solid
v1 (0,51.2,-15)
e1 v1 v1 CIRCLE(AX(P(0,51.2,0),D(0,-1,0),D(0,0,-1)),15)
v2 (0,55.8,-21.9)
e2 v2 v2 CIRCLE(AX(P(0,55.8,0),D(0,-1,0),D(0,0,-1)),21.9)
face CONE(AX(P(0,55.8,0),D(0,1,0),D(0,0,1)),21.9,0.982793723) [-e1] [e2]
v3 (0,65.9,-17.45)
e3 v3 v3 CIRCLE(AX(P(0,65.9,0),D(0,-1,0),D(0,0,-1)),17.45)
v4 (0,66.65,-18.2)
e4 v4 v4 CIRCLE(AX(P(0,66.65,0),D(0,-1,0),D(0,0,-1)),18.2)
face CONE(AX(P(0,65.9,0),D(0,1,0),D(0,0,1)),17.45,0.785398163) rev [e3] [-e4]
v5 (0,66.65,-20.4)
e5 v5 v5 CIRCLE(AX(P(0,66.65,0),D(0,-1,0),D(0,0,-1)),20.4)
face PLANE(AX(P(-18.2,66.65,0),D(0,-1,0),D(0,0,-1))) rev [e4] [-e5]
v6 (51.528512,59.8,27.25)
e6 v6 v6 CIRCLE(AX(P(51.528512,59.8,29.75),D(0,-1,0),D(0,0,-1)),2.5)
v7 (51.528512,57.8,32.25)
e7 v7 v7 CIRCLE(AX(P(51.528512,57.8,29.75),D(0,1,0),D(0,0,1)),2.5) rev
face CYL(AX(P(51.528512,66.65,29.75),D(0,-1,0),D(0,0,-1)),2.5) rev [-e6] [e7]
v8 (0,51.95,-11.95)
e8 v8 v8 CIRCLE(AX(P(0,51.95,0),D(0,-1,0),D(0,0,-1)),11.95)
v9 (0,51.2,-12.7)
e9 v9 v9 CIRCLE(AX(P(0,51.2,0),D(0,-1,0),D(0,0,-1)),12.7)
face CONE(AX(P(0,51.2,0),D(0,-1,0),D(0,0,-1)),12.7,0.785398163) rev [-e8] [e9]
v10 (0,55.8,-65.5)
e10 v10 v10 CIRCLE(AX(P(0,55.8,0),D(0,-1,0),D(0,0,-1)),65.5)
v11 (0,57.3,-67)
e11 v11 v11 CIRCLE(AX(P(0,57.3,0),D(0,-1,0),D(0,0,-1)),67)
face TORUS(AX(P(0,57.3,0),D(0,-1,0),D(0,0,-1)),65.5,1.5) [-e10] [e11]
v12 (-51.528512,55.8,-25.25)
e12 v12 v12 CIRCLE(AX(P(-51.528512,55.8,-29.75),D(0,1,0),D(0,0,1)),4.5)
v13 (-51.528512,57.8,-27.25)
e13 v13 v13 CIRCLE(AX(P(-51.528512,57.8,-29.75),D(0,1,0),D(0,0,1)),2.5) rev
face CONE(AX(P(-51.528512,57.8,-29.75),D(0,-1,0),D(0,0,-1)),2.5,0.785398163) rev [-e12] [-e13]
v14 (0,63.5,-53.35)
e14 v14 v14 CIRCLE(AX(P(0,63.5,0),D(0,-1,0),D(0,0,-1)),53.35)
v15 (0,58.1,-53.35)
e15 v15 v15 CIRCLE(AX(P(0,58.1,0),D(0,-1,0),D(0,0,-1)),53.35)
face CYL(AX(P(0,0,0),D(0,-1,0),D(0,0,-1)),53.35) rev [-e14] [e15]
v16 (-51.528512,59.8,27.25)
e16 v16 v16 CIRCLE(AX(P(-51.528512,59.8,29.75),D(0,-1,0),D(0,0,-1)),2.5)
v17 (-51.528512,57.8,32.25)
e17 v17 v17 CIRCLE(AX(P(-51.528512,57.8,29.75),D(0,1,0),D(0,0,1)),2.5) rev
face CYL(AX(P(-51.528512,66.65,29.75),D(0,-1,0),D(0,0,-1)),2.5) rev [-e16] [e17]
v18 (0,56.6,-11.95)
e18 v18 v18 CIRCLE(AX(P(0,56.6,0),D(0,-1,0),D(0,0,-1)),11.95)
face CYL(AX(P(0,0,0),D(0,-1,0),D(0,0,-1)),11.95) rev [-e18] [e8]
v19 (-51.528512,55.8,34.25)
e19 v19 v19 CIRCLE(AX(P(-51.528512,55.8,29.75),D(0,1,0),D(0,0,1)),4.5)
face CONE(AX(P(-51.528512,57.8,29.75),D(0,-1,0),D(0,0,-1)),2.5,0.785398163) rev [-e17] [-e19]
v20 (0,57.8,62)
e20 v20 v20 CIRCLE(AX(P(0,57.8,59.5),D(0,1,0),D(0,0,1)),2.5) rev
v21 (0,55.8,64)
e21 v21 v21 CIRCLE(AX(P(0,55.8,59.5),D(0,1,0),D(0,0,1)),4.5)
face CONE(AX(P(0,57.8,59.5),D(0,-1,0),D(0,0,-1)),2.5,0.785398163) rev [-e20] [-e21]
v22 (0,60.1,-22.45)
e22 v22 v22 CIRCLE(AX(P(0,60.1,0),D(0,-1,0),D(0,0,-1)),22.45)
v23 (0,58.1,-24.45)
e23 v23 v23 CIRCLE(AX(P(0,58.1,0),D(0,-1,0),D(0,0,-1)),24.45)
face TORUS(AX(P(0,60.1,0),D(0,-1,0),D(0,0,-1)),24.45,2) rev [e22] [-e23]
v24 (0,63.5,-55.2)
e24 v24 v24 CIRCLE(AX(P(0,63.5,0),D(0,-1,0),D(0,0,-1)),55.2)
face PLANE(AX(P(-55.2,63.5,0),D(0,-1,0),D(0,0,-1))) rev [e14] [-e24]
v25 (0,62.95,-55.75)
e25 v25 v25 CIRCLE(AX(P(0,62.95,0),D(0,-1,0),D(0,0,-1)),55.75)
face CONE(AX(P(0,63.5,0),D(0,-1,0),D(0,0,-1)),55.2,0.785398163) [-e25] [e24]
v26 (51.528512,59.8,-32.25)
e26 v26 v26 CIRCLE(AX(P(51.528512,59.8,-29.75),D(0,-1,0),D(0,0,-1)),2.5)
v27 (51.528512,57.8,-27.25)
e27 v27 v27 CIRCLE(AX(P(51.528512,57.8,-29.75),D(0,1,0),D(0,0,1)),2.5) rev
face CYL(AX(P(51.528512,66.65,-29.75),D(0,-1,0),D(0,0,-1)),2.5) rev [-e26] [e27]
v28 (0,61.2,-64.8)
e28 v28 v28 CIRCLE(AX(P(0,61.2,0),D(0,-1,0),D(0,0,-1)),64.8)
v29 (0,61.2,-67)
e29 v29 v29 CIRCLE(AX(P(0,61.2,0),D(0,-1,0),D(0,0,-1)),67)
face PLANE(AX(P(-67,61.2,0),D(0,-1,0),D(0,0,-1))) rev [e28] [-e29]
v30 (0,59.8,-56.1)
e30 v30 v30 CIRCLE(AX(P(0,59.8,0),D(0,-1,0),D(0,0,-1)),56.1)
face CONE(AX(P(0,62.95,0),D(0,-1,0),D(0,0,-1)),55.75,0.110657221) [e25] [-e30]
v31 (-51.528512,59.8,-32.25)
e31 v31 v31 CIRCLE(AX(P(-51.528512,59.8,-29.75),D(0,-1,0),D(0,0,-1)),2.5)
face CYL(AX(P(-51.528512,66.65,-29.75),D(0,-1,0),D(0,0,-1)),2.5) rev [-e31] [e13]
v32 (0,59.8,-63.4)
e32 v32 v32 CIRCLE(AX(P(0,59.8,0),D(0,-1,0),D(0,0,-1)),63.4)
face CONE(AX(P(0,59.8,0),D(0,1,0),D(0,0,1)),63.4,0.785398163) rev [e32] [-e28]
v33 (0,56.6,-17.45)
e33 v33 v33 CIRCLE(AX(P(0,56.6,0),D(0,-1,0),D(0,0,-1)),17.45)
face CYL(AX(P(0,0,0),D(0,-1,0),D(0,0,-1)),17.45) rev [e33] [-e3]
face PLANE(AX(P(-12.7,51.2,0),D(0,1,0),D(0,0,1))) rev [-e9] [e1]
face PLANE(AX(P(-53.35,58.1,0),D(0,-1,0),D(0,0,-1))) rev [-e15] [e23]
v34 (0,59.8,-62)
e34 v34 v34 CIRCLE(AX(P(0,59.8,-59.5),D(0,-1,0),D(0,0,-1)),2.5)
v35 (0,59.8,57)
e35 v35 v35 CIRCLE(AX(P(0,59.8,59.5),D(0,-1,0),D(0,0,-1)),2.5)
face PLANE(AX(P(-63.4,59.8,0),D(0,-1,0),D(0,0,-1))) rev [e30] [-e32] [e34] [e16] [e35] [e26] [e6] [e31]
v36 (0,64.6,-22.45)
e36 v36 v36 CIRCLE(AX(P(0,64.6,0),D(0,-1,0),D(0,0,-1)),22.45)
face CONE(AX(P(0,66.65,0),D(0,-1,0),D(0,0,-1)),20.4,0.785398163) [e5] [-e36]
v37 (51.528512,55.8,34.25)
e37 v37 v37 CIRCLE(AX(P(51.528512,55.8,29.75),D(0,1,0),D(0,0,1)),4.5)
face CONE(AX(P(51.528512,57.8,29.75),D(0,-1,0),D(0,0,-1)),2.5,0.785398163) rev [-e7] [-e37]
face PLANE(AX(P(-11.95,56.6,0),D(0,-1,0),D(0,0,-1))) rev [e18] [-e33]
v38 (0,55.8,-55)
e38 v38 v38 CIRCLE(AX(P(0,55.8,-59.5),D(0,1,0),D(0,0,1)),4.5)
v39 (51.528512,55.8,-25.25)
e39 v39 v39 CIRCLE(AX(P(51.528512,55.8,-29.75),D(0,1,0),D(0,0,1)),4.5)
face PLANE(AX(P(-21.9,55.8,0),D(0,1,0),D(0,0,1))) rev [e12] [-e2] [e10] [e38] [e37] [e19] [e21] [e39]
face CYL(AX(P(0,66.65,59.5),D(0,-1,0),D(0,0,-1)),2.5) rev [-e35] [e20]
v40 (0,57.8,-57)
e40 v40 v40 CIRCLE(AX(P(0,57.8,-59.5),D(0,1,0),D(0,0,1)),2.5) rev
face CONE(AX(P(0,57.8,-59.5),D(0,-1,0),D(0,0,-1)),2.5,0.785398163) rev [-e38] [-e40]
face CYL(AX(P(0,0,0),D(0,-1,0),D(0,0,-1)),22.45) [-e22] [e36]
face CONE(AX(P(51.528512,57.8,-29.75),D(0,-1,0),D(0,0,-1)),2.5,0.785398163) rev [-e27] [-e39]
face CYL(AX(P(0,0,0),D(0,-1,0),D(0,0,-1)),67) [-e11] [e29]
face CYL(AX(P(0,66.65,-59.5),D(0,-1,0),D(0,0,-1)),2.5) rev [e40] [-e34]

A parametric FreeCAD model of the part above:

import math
import FreeCAD as App
import Part
import Sketcher
Q = App.Units.Quantity


def edges_at(feature, points):
    """Names of the edges that pass closest to the given points."""
    edges = feature.Shape.Edges
    near = lambda p: min(range(len(edges)), key=lambda i: edges[i].distToShape(Part.Vertex(*p))[0])
    return sorted({f"Edge{near(p) + 1}" for p in points})

doc = App.newDocument("Part")
params = doc.addObject("Spreadsheet::Sheet", "Params")
for row, (alias, value) in enumerate([
    ("sketch1_radius", "2 mm"),
    ("sketch1_radius2", "1.5 mm"),
    ("sketch1_width", "5.5 mm"),
    ("sketch1_width2", "2.2 mm"),
    ("sketch1_width3", "28.9 mm"),
    ("revolution_angle", "360 deg"),
    ("sketch2_diameter", "5 mm"),
    ("chamfer_size", "2 mm"),
    ("chamfer2_size", "2 mm"),
], start=1):
    params.set(f"A{row}", alias)
    params.set(f"B{row}", "=" + value)
    params.setAlias(f"B{row}", alias)

body = doc.addObject("PartDesign::Body", "Body")

sketch1 = body.newObject("Sketcher::SketchObject", "Sketch")
sketch1.AttachmentSupport = (doc.getObject("XY_Plane"), [""])
sketch1.MapMode = "FlatFace"
sketch1.addGeometry([
    Part.LineSegment(App.Vector(-11.9, 56.6, 0), App.Vector(-17.4, 56.6, 0)),
    Part.LineSegment(App.Vector(-17.4, 56.6, 0), App.Vector(-17.4, 65.9, 0)),
    Part.LineSegment(App.Vector(-17.4, 65.9, 0), App.Vector(-18.2, 66.7, 0)),
    Part.LineSegment(App.Vector(-18.2, 66.7, 0), App.Vector(-20.4, 66.7, 0)),
    Part.LineSegment(App.Vector(-20.4, 66.7, 0), App.Vector(-22.4, 64.6, 0)),
    Part.LineSegment(App.Vector(-22.4, 64.6, 0), App.Vector(-22.4, 60.1, 0)),
    Part.ArcOfCircle(Part.Circle(App.Vector(-24.5, 60.1, 0), App.Vector(0, 0, 1), 2), math.radians(-90), math.radians(0)),
    Part.LineSegment(App.Vector(-24.4, 58.1, 0), App.Vector(-53.4, 58.1, 0)),
    Part.LineSegment(App.Vector(-53.4, 58.1, 0), App.Vector(-53.4, 63.5, 0)),
    Part.LineSegment(App.Vector(-53.4, 63.5, 0), App.Vector(-55.2, 63.5, 0)),
    Part.LineSegment(App.Vector(-55.2, 63.5, 0), App.Vector(-55.8, 63, 0)),
    Part.LineSegment(App.Vector(-55.8, 63, 0), App.Vector(-56.1, 59.8, 0)),
    Part.LineSegment(App.Vector(-56.1, 59.8, 0), App.Vector(-63.4, 59.8, 0)),
    Part.LineSegment(App.Vector(-63.4, 59.8, 0), App.Vector(-64.8, 61.2, 0)),
    Part.LineSegment(App.Vector(-64.8, 61.2, 0), App.Vector(-67, 61.2, 0)),
    Part.LineSegment(App.Vector(-67, 61.2, 0), App.Vector(-67, 57.3, 0)),
    Part.ArcOfCircle(Part.Circle(App.Vector(-65.5, 57.3, 0), App.Vector(0, 0, 1), 1.5), math.radians(180), math.radians(270)),
    Part.LineSegment(App.Vector(-65.5, 55.8, 0), App.Vector(-21.9, 55.8, 0)),
    Part.LineSegment(App.Vector(-21.9, 55.8, 0), App.Vector(-15, 51.2, 0)),
    Part.LineSegment(App.Vector(-15, 51.2, 0), App.Vector(-12.7, 51.2, 0)),
    Part.LineSegment(App.Vector(-12.7, 51.2, 0), App.Vector(-11.9, 52, 0)),
    Part.LineSegment(App.Vector(-11.9, 52, 0), App.Vector(-11.9, 56.6, 0)),
], False)
sketch1.addConstraint([
    Sketcher.Constraint("Coincident", 0, 2, 1, 1),
    Sketcher.Constraint("Coincident", 1, 2, 2, 1),
    Sketcher.Constraint("Coincident", 2, 2, 3, 1),
    Sketcher.Constraint("Coincident", 3, 2, 4, 1),
    Sketcher.Constraint("Coincident", 4, 2, 5, 1),
    Sketcher.Constraint("Tangent", 5, 2, 6, 2),
    Sketcher.Constraint("Tangent", 6, 1, 7, 1),
    Sketcher.Constraint("Coincident", 7, 2, 8, 1),
    Sketcher.Constraint("Coincident", 8, 2, 9, 1),
    Sketcher.Constraint("Coincident", 9, 2, 10, 1),
    Sketcher.Constraint("Coincident", 10, 2, 11, 1),
    Sketcher.Constraint("Coincident", 11, 2, 12, 1),
    Sketcher.Constraint("Coincident", 12, 2, 13, 1),
    Sketcher.Constraint("Coincident", 13, 2, 14, 1),
    Sketcher.Constraint("Coincident", 14, 2, 15, 1),
    Sketcher.Constraint("Tangent", 15, 2, 16, 1),
    Sketcher.Constraint("Tangent", 16, 2, 17, 1),
    Sketcher.Constraint("Coincident", 17, 2, 18, 1),
    Sketcher.Constraint("Coincident", 18, 2, 19, 1),
    Sketcher.Constraint("Coincident", 19, 2, 20, 1),
    Sketcher.Constraint("Coincident", 20, 2, 21, 1),
    Sketcher.Constraint("Coincident", 21, 2, 0, 1),
    Sketcher.Constraint("Horizontal", 0),
    Sketcher.Constraint("Vertical", 1),
    Sketcher.Constraint("Horizontal", 3),
    Sketcher.Constraint("Vertical", 5),
    Sketcher.Constraint("Horizontal", 7),
    Sketcher.Constraint("Vertical", 8),
    Sketcher.Constraint("Horizontal", 9),
    Sketcher.Constraint("Horizontal", 12),
    Sketcher.Constraint("Horizontal", 14),
    Sketcher.Constraint("Vertical", 15),
    Sketcher.Constraint("Horizontal", 17),
    Sketcher.Constraint("Horizontal", 19),
    Sketcher.Constraint("Vertical", 21),
    Sketcher.Constraint("Perpendicular", 2, 4),
    Sketcher.Constraint("Parallel", 4, 10),
    Sketcher.Constraint("Perpendicular", 10, 13),
    Sketcher.Constraint("Perpendicular", 13, 20),
    Sketcher.Constraint("Equal", 3, 14),
    Sketcher.Constraint("Equal", 2, 20),
    Sketcher.Constraint("Radius", 6, 2.0),
    Sketcher.Constraint("Radius", 16, 1.5),
    Sketcher.Constraint("Angle", 2, Q("135 deg")),
    Sketcher.Constraint("DistanceX", 0, 2, 0, 1, 5.5),
    Sketcher.Constraint("DistanceX", 3, 2, 3, 1, 2.2),
    Sketcher.Constraint("DistanceX", 7, 2, 7, 1, 28.9),
    Sketcher.Constraint("DistanceX", 12, 2, 12, 1, 7.3),
    Sketcher.Constraint("DistanceX", 17, 1, 17, 2, 43.6),
    Sketcher.Constraint("DistanceX", 19, 1, 19, 2, 2.3),
    Sketcher.Constraint("DistanceY", 1, 1, 1, 2, 9.3),
    Sketcher.Constraint("DistanceY", 5, 2, 5, 1, 4.5),
    Sketcher.Constraint("DistanceY", 8, 1, 8, 2, 5.4),
    Sketcher.Constraint("DistanceY", 15, 2, 15, 1, 3.9),
    Sketcher.Constraint("DistanceX", 14, 2, -1, 1, 67.0),
    Sketcher.Constraint("DistanceX", 18, 2, -1, 1, 15.0),
    Sketcher.Constraint("DistanceX", 6, 3, 0, 2, 7.0),
    Sketcher.Constraint("DistanceY", 0, 2, 4, 2, 8.0),
    Sketcher.Constraint("DistanceY", 16, 2, 12, 2, 4.0),
    Sketcher.Constraint("DistanceX", 9, 2, 9, 1, 1.85),
    Sketcher.Constraint("DistanceY", 21, 1, 21, 2, 4.65),
    Sketcher.Constraint("DistanceY", -1, 1, 6, 3, 60.1),
    Sketcher.Constraint("DistanceY", -1, 1, 16, 3, 57.3),
    Sketcher.Constraint("DistanceX", 10, 2, 8, 2, 2.4),
])
sketch1.setExpression("Constraints[41]", "Params.sketch1_radius")
sketch1.setExpression("Constraints[42]", "Params.sketch1_radius2")
sketch1.setExpression("Constraints[44]", "Params.sketch1_width")
sketch1.setExpression("Constraints[45]", "Params.sketch1_width2")
sketch1.setExpression("Constraints[46]", "Params.sketch1_width3")
revolution = body.newObject("PartDesign::Revolution", "Revolution")
revolution.Profile = sketch1
revolution.ReferenceAxis = (sketch1, ["V_Axis"])
revolution.setExpression("Angle", "Params.revolution_angle")

sketch2 = body.newObject("Sketcher::SketchObject", "Sketch001")
sketch2.AttachmentSupport = (doc.getObject("XZ_Plane"), [""])
sketch2.MapMode = "FlatFace"
sketch2.AttachmentOffset = App.Placement(App.Vector(0, 0, -55.8), App.Rotation())
sketch2.addGeometry(Part.Circle(App.Vector(0, 59.5, 0), App.Vector(0, 0, 1), 2.5), False)
sketch2.addConstraint([
    Sketcher.Constraint("PointOnObject", 0, 3, -2),
    Sketcher.Constraint("Diameter", 0, 5.0),
    Sketcher.Constraint("DistanceY", -1, 1, 0, 3, 59.5),
])
sketch2.setExpression("Constraints[1]", "Params.sketch2_diameter")
pocket1 = body.newObject("PartDesign::Pocket", "Pocket")
pocket1.Profile = sketch2
pocket1.Type = "ThroughAll"
doc.recompute()

chamfer = body.newObject("PartDesign::Chamfer", "Chamfer")
chamfer.Base = (pocket1, edges_at(pocket1, [(-2.5, 55.8, 59.5)]))
chamfer.setExpression("Size", "Params.chamfer_size")
doc.recompute()

polarpattern = body.newObject("PartDesign::PolarPattern", "PolarPattern")
polarpattern.Originals = [pocket1]
polarpattern.Axis = (doc.getObject("Y_Axis"), [""])
polarpattern.Angle = 360
polarpattern.Occurrences = 6
body.Tip = polarpattern
doc.recompute()

chamfer2 = body.newObject("PartDesign::Chamfer", "Chamfer001")
chamfer2.Base = (polarpattern, edges_at(polarpattern, [
    (50.279, 55.8, 31.915),
    (52.779, 55.8, -27.585),
    (2.5, 55.8, -59.5),
    (-50.279, 55.8, -31.915),
    (-52.779, 55.8, 27.585),
]))
chamfer2.setExpression("Size", "Params.chamfer2_size")

doc.recompute()
